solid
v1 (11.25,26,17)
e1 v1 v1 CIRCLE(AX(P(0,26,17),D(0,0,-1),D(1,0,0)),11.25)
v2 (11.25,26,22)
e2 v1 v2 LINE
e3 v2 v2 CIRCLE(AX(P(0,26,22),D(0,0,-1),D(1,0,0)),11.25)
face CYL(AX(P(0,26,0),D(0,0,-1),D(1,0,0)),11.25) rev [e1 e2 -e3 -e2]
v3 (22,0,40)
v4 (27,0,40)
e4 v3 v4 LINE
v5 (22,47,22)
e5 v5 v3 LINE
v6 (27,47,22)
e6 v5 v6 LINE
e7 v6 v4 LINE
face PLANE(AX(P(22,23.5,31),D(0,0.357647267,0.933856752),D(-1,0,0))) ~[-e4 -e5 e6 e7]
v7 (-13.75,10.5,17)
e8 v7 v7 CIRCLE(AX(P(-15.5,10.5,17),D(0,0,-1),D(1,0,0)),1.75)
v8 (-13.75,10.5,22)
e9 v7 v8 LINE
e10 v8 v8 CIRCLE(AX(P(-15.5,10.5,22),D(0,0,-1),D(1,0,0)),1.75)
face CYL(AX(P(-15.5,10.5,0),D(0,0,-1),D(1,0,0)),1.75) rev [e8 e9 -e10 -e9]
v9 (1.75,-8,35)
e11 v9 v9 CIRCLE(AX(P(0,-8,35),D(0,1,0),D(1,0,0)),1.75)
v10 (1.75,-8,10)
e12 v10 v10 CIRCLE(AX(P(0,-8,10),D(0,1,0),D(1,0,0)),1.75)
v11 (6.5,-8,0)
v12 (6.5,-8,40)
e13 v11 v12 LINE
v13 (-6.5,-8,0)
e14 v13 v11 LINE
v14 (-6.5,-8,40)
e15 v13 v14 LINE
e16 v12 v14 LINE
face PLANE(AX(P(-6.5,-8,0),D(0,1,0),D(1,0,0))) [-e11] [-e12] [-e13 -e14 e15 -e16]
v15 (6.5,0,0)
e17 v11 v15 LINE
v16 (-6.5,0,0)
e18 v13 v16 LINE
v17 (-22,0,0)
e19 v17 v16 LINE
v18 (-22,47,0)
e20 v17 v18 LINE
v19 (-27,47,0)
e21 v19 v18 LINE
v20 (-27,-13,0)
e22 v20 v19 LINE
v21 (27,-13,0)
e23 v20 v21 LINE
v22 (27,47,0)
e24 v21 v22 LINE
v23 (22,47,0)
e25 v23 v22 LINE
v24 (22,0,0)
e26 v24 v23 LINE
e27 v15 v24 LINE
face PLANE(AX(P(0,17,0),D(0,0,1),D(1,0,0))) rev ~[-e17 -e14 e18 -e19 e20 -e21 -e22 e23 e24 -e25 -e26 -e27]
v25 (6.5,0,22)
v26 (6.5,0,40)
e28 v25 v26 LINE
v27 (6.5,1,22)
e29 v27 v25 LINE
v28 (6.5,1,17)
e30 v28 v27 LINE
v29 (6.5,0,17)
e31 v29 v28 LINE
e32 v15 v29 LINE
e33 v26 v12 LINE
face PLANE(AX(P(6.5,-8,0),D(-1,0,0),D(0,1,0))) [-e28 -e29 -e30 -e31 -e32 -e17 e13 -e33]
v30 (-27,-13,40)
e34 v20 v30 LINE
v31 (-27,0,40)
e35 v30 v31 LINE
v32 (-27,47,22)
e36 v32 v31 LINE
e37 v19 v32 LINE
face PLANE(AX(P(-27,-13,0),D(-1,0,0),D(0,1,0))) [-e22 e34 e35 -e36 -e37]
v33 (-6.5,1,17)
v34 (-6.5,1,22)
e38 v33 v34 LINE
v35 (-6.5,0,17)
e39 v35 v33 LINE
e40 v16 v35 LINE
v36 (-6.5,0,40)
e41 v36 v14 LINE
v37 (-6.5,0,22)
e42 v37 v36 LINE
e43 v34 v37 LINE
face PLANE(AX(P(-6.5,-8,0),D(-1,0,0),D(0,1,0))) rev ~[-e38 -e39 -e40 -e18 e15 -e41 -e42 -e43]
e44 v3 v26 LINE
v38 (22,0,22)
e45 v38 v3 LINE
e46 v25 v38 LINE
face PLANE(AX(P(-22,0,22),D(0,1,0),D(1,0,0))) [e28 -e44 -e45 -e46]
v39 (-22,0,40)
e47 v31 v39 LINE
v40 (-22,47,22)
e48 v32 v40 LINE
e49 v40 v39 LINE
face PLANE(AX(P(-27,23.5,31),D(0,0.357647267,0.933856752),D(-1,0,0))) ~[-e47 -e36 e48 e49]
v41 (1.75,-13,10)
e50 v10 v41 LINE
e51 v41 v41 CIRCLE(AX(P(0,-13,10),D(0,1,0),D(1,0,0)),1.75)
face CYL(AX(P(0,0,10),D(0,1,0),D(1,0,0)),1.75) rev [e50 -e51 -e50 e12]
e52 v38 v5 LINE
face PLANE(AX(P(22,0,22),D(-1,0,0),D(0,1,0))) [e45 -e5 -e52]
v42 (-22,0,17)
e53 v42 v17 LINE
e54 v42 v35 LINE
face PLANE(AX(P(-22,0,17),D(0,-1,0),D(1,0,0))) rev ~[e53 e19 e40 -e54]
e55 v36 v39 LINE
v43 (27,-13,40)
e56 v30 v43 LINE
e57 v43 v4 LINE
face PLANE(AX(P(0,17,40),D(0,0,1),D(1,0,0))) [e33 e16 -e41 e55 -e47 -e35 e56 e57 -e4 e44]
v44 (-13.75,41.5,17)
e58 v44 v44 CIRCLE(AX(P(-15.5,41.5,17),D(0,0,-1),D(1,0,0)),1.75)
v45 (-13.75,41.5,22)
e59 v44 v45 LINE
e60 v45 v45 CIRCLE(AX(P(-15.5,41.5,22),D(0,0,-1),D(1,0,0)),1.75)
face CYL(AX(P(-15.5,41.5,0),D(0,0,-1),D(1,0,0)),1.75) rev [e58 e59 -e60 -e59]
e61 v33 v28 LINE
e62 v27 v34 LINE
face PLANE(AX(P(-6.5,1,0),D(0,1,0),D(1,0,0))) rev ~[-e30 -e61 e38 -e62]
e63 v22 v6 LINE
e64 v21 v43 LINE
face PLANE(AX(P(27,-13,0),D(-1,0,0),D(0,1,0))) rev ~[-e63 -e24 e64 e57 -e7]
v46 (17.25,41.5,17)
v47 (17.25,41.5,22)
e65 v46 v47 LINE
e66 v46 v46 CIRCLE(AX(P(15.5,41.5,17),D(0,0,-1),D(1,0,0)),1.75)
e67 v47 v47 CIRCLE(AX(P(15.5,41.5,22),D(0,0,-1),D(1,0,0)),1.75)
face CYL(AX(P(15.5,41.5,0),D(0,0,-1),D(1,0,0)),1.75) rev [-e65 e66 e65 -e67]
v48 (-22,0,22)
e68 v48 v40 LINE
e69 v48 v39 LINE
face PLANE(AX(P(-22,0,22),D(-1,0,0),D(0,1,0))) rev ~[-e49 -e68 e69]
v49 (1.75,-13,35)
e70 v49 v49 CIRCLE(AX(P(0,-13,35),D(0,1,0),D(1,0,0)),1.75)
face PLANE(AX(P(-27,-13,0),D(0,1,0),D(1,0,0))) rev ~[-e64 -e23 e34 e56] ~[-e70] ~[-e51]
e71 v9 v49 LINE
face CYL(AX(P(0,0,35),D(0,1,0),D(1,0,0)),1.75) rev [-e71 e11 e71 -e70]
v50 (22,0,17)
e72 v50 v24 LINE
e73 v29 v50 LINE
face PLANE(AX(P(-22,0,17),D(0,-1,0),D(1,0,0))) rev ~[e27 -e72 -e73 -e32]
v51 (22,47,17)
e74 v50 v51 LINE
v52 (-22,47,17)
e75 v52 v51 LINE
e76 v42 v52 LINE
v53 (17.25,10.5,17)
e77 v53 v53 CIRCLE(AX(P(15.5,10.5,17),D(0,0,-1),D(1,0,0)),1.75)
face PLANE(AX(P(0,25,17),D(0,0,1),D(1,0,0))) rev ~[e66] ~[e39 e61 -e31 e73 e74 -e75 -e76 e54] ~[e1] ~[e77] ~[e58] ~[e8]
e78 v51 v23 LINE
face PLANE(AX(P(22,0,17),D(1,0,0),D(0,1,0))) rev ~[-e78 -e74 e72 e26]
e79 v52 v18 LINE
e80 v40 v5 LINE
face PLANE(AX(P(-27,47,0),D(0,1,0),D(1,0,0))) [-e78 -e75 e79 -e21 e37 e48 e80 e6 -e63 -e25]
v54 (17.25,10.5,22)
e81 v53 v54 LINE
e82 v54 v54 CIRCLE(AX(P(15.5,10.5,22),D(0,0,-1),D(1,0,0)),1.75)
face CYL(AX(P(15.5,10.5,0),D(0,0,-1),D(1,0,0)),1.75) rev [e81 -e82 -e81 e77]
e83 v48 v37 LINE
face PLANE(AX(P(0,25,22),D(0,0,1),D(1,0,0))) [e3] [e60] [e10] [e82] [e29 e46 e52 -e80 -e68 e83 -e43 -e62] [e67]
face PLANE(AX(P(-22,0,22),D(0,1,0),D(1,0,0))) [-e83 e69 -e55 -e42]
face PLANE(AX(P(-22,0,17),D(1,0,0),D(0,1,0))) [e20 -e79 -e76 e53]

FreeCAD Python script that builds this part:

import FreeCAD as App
import Part
import Sketcher
Q = App.Units.Quantity


def edges_at(feature, points):
    """Names of the edges that pass closest to the given points."""
    edges = feature.Shape.Edges
    near = lambda p: min(range(len(edges)), key=lambda i: edges[i].distToShape(Part.Vertex(*p))[0])
    return sorted({f"Edge{near(p) + 1}" for p in points})


def add_polygon(sketch, points):
    """Adds a closed chain of lines whose ends are joined by coincident constraints."""
    first, n = sketch.GeometryCount, len(points)
    for a, b in zip(points, points[1:] + points[:1]):
        sketch.addGeometry(Part.LineSegment(App.Vector(*a, 0), App.Vector(*b, 0)), False)
    for i in range(n):
        sketch.addConstraint(Sketcher.Constraint("Coincident", first + i, 2, first + (i + 1) % n, 1))

doc = App.newDocument("Part")
body = doc.addObject("PartDesign::Body", "Body")

sketch1 = body.newObject("Sketcher::SketchObject", "Sketch")
sketch1.AttachmentSupport = (doc.getObject("XY_Plane"), [""])
sketch1.MapMode = "FlatFace"
add_polygon(sketch1, [(-27, 47), (-27, -13), (27, -13), (27, 47)])
sketch1.addGeometry(Part.Circle(App.Vector(-15.5, 10.5, 0), App.Vector(0, 0, 1), 1.75), False)
sketch1.addGeometry(Part.Circle(App.Vector(15.5, 10.5, 0), App.Vector(0, 0, 1), 1.75), False)
sketch1.addGeometry(Part.Circle(App.Vector(-15.5, 41.5, 0), App.Vector(0, 0, 1), 1.75), False)
sketch1.addGeometry(Part.Circle(App.Vector(0, 26, 0), App.Vector(0, 0, 1), 11.25), False)
sketch1.addGeometry(Part.Circle(App.Vector(15.5, 41.5, 0), App.Vector(0, 0, 1), 1.75), False)
sketch1.addConstraint(Sketcher.Constraint("Vertical", 0))
sketch1.addConstraint(Sketcher.Constraint("Horizontal", 1))
sketch1.addConstraint(Sketcher.Constraint("Vertical", 2))
sketch1.addConstraint(Sketcher.Constraint("Horizontal", 3))
sketch1.addConstraint(Sketcher.Constraint("Equal", 4, 5))
sketch1.addConstraint(Sketcher.Constraint("Equal", 5, 6))
sketch1.addConstraint(Sketcher.Constraint("Equal", 6, 8))
sketch1.addConstraint(Sketcher.Constraint("Symmetric", 4, 3, 5, 3, -2))
sketch1.addConstraint(Sketcher.Constraint("Symmetric", 6, 3, 8, 3, -2))
sketch1.addConstraint(Sketcher.Constraint("PointOnObject", 7, 3, -2))
sketch1.addConstraint(Sketcher.Constraint("Vertical", 4, 3, 6, 3))
sketch1.addConstraint(Sketcher.Constraint("Diameter", 4, Q("3.5 mm")))
sketch1.addConstraint(Sketcher.Constraint("Diameter", 7, Q("22.5 mm")))
sketch1.addConstraint(Sketcher.Constraint("DistanceX", 1, 1, 1, 2, Q("54 mm")))
sketch1.addConstraint(Sketcher.Constraint("DistanceY", 0, 2, 0, 1, Q("60 mm")))
sketch1.addConstraint(Sketcher.Constraint("DistanceY", -1, 1, 7, 3, Q("26 mm")))
sketch1.addConstraint(Sketcher.Constraint("DistanceX", 0, 2, -1, 1, Q("27 mm")))
sketch1.addConstraint(Sketcher.Constraint("DistanceY", 0, 2, -1, 1, Q("13 mm")))
sketch1.addConstraint(Sketcher.Constraint("DistanceX", 4, 3, 5, 3, Q("31 mm")))
sketch1.addConstraint(Sketcher.Constraint("DistanceY", 4, 3, 6, 3, Q("31 mm")))
sketch1.addConstraint(Sketcher.Constraint("DistanceY", -1, 1, 4, 3, Q("10.5 mm")))
pad1 = body.newObject("PartDesign::Pad", "Pad")
pad1.Profile = sketch1
pad1.Length = 40

sketch2 = body.newObject("Sketcher::SketchObject", "Sketch001")
sketch2.AttachmentSupport = (doc.getObject("XY_Plane"), [""])
sketch2.MapMode = "FlatFace"
sketch2.AttachmentOffset = App.Placement(App.Vector(0, 0, 22), App.Rotation())
add_polygon(sketch2, [(-22, 50), (-22, 0), (22, 0), (22, 50)])
sketch2.addConstraint(Sketcher.Constraint("Vertical", 0))
sketch2.addConstraint(Sketcher.Constraint("Horizontal", 1))
sketch2.addConstraint(Sketcher.Constraint("Vertical", 2))
sketch2.addConstraint(Sketcher.Constraint("Horizontal", 3))
sketch2.addConstraint(Sketcher.Constraint("Symmetric", 0, 2, 1, 2, -1, 1))
sketch2.addConstraint(Sketcher.Constraint("DistanceX", 1, 1, 1, 2, Q("44 mm")))
sketch2.addConstraint(Sketcher.Constraint("DistanceY", 0, 2, 0, 1, Q("50 mm")))
pocket1 = body.newObject("PartDesign::Pocket", "Pocket")
pocket1.Profile = sketch2
pocket1.Type = "ThroughAll"
pocket1.Reversed = True

sketch3 = body.newObject("Sketcher::SketchObject", "Sketch002")
sketch3.AttachmentSupport = (doc.getObject("XY_Plane"), [""])
sketch3.MapMode = "FlatFace"
add_polygon(sketch3, [(-6.5, 1), (-6.5, -8), (6.5, -8), (6.5, 1)])
sketch3.addConstraint(Sketcher.Constraint("Vertical", 0))
sketch3.addConstraint(Sketcher.Constraint("Horizontal", 1))
sketch3.addConstraint(Sketcher.Constraint("Vertical", 2))
sketch3.addConstraint(Sketcher.Constraint("Horizontal", 3))
sketch3.addConstraint(Sketcher.Constraint("DistanceX", 1, 1, 1, 2, Q("13 mm")))
sketch3.addConstraint(Sketcher.Constraint("DistanceY", 0, 2, 0, 1, Q("9 mm")))
sketch3.addConstraint(Sketcher.Constraint("DistanceY", 0, 2, -1, 1, Q("8 mm")))
sketch3.addConstraint(Sketcher.Constraint("DistanceX", 0, 2, -1, 1, Q("6.5 mm")))
pocket2 = body.newObject("PartDesign::Pocket", "Pocket001")
pocket2.Profile = sketch3
pocket2.Type = "ThroughAll"
pocket2.Reversed = True

sketch4 = body.newObject("Sketcher::SketchObject", "Sketch003")
sketch4.AttachmentSupport = (doc.getObject("XZ_Plane"), [""])
sketch4.MapMode = "FlatFace"
sketch4.addGeometry(Part.Circle(App.Vector(0, 35, 0), App.Vector(0, 0, 1), 1.75), False)
sketch4.addGeometry(Part.Circle(App.Vector(0, 10, 0), App.Vector(0, 0, 1), 1.75), False)
sketch4.addConstraint(Sketcher.Constraint("Equal", 0, 1))
sketch4.addConstraint(Sketcher.Constraint("PointOnObject", 0, 3, -2))
sketch4.addConstraint(Sketcher.Constraint("PointOnObject", 1, 3, -2))
sketch4.addConstraint(Sketcher.Constraint("Diameter", 0, Q("3.5 mm")))
sketch4.addConstraint(Sketcher.Constraint("DistanceY", -1, 1, 0, 3, Q("35 mm")))
sketch4.addConstraint(Sketcher.Constraint("DistanceY", -1, 1, 1, 3, Q("10 mm")))
pocket3 = body.newObject("PartDesign::Pocket", "Pocket002")
pocket3.Profile = sketch4
pocket3.Type = "ThroughAll"
pocket3.Reversed = True

sketch5 = body.newObject("Sketcher::SketchObject", "Sketch004")
sketch5.AttachmentSupport = (doc.getObject("XY_Plane"), [""])
sketch5.MapMode = "FlatFace"
sketch5.AttachmentOffset = App.Placement(App.Vector(0, 0, 17), App.Rotation())
add_polygon(sketch5, [(-22, 50), (-22, 0), (22, 0), (22, 50)])
sketch5.addConstraint(Sketcher.Constraint("Vertical", 0))
sketch5.addConstraint(Sketcher.Constraint("Horizontal", 1))
sketch5.addConstraint(Sketcher.Constraint("Vertical", 2))
sketch5.addConstraint(Sketcher.Constraint("Horizontal", 3))
sketch5.addConstraint(Sketcher.Constraint("Symmetric", 0, 2, 1, 2, -1, 1))
sketch5.addConstraint(Sketcher.Constraint("DistanceX", 1, 1, 1, 2, Q("44 mm")))
sketch5.addConstraint(Sketcher.Constraint("DistanceY", 0, 2, 0, 1, Q("50 mm")))
pocket4 = body.newObject("PartDesign::Pocket", "Pocket003")
pocket4.Profile = sketch5
pocket4.Type = "ThroughAll"
doc.recompute()

chamfer = body.newObject("PartDesign::Chamfer", "Chamfer")
chamfer.Base = (pocket4, edges_at(pocket4, [(24.5, 47, 40), (-24.5, 47, 40)]))
chamfer.ChamferType = "Two distances"
chamfer.Size = 18
chamfer.Size2 = 47

doc.recompute()
